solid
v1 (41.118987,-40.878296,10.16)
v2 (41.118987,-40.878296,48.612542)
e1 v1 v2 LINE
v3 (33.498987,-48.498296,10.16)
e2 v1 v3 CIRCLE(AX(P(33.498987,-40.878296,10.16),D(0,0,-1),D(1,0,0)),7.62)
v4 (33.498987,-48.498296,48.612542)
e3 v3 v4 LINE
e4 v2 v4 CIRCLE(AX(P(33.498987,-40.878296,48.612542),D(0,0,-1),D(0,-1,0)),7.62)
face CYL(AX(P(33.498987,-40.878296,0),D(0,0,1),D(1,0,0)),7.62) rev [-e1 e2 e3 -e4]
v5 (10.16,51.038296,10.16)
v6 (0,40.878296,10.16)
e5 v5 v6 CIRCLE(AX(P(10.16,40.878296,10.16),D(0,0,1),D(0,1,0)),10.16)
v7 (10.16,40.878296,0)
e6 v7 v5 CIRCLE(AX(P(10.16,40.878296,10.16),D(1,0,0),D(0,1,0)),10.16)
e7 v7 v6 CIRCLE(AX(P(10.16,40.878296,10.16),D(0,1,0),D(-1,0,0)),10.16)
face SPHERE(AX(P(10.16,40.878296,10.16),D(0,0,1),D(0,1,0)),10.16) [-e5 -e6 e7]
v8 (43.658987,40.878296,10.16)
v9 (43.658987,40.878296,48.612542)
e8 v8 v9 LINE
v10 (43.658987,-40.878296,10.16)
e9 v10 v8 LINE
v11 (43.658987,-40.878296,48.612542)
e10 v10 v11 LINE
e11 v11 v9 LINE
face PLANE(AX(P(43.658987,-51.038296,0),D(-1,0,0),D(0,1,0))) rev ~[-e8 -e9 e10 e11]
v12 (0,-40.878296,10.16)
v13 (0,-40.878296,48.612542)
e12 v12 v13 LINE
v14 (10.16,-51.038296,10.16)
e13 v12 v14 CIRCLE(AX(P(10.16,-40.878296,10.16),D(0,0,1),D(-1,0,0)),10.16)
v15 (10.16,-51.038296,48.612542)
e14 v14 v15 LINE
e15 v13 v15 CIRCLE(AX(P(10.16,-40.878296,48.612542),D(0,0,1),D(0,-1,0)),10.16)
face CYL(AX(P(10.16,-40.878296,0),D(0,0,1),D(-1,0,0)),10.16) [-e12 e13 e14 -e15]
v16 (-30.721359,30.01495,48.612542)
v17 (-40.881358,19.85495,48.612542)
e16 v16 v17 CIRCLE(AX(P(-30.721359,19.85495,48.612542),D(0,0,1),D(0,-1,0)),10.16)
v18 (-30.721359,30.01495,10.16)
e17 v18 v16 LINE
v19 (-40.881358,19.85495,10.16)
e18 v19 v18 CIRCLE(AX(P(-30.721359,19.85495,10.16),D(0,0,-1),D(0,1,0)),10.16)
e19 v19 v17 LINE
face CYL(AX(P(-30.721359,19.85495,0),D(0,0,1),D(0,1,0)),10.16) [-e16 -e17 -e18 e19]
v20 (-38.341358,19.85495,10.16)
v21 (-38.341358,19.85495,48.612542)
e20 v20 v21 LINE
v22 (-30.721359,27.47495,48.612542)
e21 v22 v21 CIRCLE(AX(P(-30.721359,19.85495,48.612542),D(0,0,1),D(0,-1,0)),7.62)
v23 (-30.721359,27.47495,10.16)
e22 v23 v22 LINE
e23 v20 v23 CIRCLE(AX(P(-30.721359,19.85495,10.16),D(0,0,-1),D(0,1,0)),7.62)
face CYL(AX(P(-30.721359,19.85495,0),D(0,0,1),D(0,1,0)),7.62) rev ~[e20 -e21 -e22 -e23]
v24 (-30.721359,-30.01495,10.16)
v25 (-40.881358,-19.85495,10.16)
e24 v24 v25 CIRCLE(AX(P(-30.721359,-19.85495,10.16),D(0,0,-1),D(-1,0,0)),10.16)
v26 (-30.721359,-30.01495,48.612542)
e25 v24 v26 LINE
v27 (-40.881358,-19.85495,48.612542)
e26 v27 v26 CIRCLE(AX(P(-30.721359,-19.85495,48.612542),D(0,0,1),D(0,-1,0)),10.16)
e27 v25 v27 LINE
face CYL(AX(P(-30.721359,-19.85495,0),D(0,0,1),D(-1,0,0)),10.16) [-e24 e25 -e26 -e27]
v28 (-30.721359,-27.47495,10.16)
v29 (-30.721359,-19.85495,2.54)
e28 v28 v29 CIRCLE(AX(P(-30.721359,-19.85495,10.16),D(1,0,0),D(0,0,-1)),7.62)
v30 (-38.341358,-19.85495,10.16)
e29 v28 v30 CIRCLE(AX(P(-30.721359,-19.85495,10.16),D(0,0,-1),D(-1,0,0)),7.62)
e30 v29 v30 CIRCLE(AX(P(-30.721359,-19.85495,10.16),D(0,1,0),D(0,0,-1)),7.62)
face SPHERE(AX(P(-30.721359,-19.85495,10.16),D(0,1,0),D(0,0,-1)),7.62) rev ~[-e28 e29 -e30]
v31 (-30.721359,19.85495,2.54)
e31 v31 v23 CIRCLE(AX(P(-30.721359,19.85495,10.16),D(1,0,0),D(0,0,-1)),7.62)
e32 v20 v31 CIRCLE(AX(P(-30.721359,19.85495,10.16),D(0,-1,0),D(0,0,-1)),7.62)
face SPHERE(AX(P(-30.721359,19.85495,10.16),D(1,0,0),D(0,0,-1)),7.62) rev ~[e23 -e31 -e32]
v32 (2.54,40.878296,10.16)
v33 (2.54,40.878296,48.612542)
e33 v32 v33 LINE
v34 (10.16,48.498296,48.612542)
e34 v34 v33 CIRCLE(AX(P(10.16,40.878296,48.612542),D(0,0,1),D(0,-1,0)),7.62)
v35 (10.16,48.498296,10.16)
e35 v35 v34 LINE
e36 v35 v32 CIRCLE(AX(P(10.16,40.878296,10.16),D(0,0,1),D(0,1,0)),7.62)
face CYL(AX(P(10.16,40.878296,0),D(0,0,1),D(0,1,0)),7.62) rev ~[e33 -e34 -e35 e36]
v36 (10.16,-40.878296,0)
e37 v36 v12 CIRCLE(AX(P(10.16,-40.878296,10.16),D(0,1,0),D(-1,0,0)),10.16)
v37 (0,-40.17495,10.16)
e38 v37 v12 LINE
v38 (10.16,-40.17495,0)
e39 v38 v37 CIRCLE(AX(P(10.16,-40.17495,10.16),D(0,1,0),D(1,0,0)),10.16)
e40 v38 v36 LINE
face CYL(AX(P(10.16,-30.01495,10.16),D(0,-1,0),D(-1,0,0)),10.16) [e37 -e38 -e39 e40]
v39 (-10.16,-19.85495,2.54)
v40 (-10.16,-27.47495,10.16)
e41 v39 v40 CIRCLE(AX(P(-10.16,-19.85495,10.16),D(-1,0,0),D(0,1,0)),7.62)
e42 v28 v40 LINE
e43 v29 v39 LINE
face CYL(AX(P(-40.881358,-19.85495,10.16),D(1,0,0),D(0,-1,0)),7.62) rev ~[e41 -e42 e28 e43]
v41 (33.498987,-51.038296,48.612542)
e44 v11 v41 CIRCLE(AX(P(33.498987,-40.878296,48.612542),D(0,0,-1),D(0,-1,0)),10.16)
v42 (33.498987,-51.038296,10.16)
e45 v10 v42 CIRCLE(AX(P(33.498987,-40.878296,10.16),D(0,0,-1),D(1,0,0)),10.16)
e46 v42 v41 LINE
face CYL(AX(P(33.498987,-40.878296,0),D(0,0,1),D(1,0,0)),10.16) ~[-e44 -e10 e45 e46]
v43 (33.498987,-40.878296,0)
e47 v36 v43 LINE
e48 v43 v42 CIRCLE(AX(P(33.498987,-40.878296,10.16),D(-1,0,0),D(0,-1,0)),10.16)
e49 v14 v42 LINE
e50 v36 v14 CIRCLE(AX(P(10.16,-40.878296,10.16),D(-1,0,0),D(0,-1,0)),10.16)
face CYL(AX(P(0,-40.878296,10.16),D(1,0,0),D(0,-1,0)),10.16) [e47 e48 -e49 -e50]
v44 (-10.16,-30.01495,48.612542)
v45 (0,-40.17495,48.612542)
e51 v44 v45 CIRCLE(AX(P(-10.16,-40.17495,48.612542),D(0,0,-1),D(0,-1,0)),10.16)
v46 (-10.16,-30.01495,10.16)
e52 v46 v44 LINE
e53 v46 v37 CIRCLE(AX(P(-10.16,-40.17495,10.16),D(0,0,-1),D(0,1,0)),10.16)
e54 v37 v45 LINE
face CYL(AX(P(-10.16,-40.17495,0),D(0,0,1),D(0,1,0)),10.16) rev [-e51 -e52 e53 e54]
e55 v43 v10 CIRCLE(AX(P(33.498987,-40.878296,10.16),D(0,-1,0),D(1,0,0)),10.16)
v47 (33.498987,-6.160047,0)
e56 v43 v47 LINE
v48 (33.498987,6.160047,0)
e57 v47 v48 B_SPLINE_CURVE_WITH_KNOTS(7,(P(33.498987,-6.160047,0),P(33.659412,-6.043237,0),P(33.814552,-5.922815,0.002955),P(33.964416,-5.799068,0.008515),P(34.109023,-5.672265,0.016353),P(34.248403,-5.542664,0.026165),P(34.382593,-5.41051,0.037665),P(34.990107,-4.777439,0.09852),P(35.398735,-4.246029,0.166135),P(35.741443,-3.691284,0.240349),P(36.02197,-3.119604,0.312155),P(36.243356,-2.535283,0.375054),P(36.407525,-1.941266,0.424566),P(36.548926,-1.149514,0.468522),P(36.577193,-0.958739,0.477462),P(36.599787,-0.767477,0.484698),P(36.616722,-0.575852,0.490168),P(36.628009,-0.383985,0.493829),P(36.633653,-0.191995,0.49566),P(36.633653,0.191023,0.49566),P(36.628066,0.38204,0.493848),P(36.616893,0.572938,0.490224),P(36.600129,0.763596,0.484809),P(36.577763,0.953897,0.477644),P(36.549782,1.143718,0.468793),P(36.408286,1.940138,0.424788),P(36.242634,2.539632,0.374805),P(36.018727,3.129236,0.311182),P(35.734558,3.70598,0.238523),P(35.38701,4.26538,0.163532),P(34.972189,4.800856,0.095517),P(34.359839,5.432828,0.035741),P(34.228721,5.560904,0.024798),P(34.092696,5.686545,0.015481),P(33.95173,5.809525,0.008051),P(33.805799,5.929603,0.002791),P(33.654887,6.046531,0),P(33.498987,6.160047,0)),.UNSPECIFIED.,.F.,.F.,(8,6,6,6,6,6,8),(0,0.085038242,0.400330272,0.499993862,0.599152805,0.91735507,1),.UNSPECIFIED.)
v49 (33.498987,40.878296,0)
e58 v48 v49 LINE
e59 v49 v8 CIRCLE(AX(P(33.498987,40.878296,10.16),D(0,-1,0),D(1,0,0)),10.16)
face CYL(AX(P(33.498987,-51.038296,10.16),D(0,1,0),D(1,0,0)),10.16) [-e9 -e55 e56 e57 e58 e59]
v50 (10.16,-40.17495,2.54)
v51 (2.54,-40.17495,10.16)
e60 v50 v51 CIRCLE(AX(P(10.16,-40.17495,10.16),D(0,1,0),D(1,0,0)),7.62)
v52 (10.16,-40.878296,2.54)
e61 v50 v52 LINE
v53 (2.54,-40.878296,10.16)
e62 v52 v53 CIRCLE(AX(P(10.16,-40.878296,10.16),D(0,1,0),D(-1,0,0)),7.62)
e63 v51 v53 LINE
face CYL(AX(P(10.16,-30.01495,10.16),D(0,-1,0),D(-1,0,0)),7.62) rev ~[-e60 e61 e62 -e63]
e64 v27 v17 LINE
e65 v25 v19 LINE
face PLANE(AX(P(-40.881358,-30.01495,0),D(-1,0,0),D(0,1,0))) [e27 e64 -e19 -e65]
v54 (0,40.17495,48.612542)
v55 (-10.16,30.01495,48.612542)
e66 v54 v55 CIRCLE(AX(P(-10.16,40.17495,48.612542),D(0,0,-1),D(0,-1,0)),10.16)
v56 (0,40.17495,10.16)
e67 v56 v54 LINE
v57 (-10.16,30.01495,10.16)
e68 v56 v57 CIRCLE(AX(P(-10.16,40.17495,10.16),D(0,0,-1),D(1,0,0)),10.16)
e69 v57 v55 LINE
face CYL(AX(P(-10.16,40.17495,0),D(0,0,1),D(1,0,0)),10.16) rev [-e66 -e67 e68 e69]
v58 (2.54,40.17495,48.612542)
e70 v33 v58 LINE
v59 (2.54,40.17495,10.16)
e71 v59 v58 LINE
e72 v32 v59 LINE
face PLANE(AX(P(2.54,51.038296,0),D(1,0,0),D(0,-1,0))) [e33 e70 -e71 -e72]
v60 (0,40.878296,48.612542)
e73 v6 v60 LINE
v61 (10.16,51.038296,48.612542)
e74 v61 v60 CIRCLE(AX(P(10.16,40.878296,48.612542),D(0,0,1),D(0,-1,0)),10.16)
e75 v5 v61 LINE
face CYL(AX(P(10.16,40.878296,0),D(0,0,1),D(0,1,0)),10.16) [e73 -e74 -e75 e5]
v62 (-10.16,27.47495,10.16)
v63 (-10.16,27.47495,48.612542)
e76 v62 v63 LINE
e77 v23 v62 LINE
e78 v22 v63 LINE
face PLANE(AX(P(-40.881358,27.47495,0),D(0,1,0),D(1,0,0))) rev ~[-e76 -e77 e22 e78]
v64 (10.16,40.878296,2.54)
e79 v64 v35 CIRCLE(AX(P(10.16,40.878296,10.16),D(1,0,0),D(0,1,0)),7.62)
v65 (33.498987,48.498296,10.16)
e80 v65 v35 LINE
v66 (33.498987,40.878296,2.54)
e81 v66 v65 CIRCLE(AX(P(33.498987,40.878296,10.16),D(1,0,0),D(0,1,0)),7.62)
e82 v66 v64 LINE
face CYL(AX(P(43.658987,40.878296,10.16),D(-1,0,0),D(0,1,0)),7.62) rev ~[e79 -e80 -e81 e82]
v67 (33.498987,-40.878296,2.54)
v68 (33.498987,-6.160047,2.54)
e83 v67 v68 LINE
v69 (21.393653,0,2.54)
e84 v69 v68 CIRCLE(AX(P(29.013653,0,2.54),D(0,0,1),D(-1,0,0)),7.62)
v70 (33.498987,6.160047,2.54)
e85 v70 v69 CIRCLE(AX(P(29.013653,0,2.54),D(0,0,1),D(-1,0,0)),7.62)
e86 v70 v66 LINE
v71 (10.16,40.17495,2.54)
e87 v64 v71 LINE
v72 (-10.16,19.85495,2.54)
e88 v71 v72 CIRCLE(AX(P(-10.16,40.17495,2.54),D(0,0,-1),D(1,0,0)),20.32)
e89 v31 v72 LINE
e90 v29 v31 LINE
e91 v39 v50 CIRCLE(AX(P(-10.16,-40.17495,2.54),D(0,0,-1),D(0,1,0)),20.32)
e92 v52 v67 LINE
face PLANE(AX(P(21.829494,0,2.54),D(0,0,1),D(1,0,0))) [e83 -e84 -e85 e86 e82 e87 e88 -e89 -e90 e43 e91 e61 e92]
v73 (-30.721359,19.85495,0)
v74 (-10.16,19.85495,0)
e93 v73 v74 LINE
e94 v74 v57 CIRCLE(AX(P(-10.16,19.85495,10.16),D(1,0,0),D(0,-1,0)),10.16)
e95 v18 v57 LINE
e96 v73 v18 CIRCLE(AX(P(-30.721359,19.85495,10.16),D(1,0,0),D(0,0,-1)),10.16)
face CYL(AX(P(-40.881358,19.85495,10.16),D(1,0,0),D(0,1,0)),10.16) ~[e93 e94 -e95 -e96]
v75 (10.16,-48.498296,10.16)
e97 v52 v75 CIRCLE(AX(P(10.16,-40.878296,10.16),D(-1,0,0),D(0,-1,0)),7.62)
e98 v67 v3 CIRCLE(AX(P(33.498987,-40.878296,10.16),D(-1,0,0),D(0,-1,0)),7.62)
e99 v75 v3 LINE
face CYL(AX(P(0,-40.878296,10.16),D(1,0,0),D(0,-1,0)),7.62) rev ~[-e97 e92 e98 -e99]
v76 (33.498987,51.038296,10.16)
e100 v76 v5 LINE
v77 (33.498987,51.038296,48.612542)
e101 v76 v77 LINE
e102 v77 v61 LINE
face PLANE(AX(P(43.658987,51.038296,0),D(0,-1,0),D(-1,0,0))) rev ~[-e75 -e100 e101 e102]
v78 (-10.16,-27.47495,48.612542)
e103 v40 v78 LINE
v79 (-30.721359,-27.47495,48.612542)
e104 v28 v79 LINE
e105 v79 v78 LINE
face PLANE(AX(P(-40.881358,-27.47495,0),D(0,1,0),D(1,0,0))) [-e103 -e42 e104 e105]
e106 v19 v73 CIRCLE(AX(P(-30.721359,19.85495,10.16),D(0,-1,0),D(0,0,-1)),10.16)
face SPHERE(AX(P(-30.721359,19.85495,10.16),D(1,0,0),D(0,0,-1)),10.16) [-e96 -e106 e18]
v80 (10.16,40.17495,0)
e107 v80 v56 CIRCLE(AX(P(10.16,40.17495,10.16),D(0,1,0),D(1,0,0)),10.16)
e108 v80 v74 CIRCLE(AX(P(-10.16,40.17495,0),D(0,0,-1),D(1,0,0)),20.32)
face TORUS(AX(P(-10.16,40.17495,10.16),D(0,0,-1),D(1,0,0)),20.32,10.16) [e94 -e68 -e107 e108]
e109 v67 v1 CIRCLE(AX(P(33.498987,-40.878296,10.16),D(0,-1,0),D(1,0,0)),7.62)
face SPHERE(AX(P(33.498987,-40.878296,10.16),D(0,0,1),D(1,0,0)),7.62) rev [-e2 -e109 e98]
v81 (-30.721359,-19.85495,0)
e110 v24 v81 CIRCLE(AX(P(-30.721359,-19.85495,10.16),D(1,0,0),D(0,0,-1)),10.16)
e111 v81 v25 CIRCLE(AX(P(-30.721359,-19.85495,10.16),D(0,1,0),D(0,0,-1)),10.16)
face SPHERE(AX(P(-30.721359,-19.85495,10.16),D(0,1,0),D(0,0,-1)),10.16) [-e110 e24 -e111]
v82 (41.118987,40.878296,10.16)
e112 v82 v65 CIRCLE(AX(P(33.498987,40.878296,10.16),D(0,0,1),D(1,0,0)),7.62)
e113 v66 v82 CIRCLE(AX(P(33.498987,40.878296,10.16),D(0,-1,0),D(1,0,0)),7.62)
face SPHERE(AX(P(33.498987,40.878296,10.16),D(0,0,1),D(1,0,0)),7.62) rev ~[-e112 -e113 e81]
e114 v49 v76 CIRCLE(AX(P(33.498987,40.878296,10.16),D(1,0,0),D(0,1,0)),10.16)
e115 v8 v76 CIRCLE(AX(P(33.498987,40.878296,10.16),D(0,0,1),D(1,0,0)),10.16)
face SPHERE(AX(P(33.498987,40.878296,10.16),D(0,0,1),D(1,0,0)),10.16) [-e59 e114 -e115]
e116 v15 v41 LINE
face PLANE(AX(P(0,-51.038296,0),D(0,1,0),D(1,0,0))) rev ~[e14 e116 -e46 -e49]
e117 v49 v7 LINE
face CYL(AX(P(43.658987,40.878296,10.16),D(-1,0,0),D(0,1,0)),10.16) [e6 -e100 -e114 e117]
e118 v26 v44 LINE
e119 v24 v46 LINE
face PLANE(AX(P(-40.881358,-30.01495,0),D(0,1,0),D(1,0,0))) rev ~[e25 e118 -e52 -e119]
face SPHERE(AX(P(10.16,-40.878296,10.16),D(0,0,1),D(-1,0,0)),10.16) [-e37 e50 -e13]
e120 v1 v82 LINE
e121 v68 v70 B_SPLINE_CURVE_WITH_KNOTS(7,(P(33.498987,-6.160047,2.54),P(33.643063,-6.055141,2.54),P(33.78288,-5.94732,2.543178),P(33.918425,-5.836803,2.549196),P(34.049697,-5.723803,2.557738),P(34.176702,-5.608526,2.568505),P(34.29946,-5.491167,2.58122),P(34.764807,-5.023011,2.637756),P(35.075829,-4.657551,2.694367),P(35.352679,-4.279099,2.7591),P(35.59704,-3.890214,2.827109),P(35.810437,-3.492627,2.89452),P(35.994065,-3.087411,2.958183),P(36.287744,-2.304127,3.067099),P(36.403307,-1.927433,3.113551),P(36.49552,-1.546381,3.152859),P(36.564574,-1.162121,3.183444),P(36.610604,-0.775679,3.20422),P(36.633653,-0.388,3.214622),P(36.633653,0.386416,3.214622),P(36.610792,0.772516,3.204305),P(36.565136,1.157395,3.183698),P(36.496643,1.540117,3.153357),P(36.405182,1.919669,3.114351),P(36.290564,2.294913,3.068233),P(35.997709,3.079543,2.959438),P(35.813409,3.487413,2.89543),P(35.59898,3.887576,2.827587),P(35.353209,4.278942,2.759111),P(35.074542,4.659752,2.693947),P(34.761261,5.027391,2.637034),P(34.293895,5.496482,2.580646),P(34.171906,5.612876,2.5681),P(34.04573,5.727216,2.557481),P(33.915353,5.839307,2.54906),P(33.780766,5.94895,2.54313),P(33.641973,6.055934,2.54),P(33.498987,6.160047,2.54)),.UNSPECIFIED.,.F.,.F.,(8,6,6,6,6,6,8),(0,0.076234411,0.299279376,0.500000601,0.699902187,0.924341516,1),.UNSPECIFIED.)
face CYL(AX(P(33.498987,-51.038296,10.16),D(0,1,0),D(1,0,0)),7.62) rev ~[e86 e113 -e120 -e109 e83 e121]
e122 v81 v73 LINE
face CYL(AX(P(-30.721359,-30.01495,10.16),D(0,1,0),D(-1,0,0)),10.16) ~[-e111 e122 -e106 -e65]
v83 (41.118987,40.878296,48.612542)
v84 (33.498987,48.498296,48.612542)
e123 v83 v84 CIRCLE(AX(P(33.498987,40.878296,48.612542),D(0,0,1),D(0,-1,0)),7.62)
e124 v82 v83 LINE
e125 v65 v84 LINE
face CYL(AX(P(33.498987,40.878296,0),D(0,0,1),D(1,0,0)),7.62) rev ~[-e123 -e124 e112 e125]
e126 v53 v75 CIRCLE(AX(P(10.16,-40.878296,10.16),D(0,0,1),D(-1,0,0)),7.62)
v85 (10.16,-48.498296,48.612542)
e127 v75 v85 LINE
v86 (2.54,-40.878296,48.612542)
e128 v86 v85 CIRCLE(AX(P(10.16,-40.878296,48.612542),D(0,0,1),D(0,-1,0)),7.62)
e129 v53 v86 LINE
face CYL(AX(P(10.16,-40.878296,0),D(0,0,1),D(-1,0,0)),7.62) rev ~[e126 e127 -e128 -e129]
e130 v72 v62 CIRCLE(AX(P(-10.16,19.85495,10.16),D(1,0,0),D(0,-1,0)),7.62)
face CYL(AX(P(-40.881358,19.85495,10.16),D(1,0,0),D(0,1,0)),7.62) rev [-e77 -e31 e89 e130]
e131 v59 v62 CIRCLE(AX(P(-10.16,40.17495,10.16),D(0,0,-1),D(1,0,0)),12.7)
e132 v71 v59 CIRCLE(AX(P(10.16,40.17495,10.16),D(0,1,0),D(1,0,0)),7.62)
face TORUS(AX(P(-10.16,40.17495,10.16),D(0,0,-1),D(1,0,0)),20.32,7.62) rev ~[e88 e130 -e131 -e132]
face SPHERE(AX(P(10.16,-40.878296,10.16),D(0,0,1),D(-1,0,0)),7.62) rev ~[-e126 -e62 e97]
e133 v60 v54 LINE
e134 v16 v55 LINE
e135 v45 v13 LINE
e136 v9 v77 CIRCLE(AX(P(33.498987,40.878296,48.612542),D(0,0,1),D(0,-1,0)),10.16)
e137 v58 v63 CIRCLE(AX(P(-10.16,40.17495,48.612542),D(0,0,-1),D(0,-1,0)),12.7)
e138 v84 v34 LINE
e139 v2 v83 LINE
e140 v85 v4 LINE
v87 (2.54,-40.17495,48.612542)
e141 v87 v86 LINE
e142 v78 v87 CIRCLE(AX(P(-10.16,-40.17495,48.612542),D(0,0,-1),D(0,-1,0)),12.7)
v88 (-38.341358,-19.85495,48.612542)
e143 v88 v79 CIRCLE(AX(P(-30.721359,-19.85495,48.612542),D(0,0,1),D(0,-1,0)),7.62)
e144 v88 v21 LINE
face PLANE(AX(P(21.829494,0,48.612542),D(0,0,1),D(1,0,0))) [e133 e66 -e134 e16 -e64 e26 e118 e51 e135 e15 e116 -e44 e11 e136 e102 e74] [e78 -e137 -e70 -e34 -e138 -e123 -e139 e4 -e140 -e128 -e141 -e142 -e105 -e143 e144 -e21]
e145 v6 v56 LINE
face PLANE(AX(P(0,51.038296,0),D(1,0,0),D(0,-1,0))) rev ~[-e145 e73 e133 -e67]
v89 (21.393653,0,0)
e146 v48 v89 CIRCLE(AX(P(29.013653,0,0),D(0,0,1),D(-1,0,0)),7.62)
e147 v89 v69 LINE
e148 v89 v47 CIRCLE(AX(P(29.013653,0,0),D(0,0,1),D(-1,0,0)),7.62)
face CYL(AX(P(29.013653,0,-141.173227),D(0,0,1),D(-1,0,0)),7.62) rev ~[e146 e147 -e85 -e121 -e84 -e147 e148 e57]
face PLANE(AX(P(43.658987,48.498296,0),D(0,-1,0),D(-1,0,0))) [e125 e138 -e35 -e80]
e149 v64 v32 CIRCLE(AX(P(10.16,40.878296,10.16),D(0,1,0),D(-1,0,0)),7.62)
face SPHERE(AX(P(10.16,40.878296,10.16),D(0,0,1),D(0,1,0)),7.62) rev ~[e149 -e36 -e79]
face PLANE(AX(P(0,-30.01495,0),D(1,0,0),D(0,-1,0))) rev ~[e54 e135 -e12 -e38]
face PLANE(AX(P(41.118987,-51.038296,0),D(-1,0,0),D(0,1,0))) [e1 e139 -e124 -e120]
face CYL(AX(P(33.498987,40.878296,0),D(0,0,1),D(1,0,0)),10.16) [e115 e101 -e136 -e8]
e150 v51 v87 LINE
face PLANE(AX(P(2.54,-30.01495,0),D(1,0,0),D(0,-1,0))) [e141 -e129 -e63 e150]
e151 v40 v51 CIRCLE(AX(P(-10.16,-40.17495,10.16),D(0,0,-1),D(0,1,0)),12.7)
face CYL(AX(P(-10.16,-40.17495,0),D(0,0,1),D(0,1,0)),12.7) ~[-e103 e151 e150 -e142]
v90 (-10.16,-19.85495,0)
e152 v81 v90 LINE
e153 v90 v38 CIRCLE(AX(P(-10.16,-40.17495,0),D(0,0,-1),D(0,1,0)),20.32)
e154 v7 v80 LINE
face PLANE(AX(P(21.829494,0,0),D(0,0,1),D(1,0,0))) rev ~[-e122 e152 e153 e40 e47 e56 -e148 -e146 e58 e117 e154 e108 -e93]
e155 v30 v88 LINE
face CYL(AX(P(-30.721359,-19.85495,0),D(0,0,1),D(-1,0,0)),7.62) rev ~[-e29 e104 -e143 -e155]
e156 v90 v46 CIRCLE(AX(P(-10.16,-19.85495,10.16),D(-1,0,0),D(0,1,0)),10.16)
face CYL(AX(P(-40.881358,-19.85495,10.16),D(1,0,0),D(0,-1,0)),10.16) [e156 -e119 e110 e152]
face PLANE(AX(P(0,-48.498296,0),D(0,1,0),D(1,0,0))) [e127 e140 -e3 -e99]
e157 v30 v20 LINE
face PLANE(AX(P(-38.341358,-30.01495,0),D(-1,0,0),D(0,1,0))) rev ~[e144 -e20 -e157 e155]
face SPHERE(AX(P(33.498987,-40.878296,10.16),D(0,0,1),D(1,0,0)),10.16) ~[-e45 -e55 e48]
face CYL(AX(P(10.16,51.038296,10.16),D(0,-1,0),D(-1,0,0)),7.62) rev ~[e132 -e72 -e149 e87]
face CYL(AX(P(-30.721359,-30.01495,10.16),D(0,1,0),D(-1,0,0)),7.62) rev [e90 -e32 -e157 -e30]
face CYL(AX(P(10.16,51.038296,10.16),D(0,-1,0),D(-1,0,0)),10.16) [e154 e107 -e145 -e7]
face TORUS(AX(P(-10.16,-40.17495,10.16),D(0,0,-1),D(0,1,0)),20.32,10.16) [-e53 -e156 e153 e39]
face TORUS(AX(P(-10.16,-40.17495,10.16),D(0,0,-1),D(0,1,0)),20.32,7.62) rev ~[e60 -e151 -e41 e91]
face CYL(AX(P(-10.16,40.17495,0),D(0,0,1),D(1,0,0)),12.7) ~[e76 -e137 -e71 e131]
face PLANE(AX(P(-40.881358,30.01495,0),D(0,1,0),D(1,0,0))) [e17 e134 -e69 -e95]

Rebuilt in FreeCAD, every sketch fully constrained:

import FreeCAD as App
import Part
import Sketcher
from FreeCAD import Vector
Q = App.Units.Quantity


def edges_at(feature, points):
    """Names of the edges that pass closest to the given points."""
    edges = feature.Shape.Edges
    near = lambda p: min(range(len(edges)), key=lambda i: edges[i].distToShape(Part.Vertex(*p))[0])
    return sorted({f"Edge{near(p) + 1}" for p in points})


def faces_at(feature, points):
    """Names of the faces that lie closest to the given points."""
    faces = feature.Shape.Faces
    near = lambda p: min(range(len(faces)), key=lambda i: faces[i].distToShape(Part.Vertex(*p))[0])
    return sorted({f"Face{near(p) + 1}" for p in points})


def add_polygon(sketch, points):
    """Adds a closed chain of lines whose ends are joined by coincident constraints."""
    first, n = sketch.GeometryCount, len(points)
    for a, b in zip(points, points[1:] + points[:1]):
        sketch.addGeometry(Part.LineSegment(App.Vector(*a, 0), App.Vector(*b, 0)), False)
    for i in range(n):
        sketch.addConstraint(Sketcher.Constraint("Coincident", first + i, 2, first + (i + 1) % n, 1))

doc = App.newDocument("Part")
body = doc.addObject("PartDesign::Body", "Body")

# Sketch on XY plane
sketch1 = doc.addObject("Sketcher::SketchObject", "Sketch")
body.addObject(sketch1)
sketch1.AttachmentSupport = (doc.XY_Plane, [""])
sketch1.MapMode = "FlatFace"
add_polygon(sketch1, [(44, -51), (44, 51), (0, 51), (0, 30), (-41, 30), (-41, -30), (0, -30), (0, -51)])  # lines 0-7
sketch1.addConstraint([
    Sketcher.Constraint("Vertical", 0),
    Sketcher.Constraint("Horizontal", 1),
    Sketcher.Constraint("Vertical", 2),
    Sketcher.Constraint("Horizontal", 3),
    Sketcher.Constraint("Vertical", 4),
    Sketcher.Constraint("Horizontal", 5),
    Sketcher.Constraint("Vertical", 6),
    Sketcher.Constraint("Horizontal", 7),
    Sketcher.Constraint("Symmetric", 2, 2, 5, 2, -1, 1),
    Sketcher.Constraint("Symmetric", 1, 2, 6, 2, -1),
    Sketcher.Constraint("DistanceY", 4, 2, 4, 1, Q("60.0299 mm")),
    Sketcher.Constraint("DistanceX", 3, 2, 3, 1, Q("40.881358 mm")),
    Sketcher.Constraint("DistanceX", 1, 2, 1, 1, Q("43.658987 mm")),
    Sketcher.Constraint("DistanceY", 0, 1, 0, 2, Q("102.076592 mm")),
])
pad1 = doc.addObject("PartDesign::Pad", "Pad")
body.addObject(pad1)
pad1.Profile = sketch1
pad1.Length = 48.612542
doc.recompute()

fillet = doc.addObject("PartDesign::Fillet", "Fillet")
body.addObject(fillet)
fillet.Base = (pad1, edges_at(pad1, [
    (0, 51.038, 24.306),
    (43.659, -51.038, 24.306),
    (43.659, 51.038, 24.306),
    (0, -51.038, 24.306),
    (43.659, 0, 0),
    (21.829, 51.038, 0),
    (0, 40.527, 0),
    (-20.441, 30.015, 0),
    (-40.881, 0, 0),
    (-20.441, -30.015, 0),
    (0, -40.527, 0),
    (21.829, -51.038, 0),
    (0, 30.015, 24.306),
    (-40.881, 30.015, 24.306),
    (-40.881, -30.015, 24.306),
    (0, -30.015, 24.306),
]))
fillet.Radius = Q("0.4 in")
doc.recompute()

thickness = doc.addObject("PartDesign::Thickness", "Thickness")
body.addObject(thickness)
thickness.Base = (fillet, faces_at(fillet, [(1.389, 0, 48.613)]))
thickness.Value = Q("0.1 in")
thickness.Reversed = True
thickness.Join = "Arc"

# Sketch on XY plane
sketch2 = doc.addObject("Sketcher::SketchObject", "Sketch001")
body.addObject(sketch2)
sketch2.AttachmentSupport = (doc.XY_Plane, [""])
sketch2.MapMode = "FlatFace"
sketch2.addGeometry(Part.Circle(Vector(29, 0, 0), Vector(0, 0, 1), 8), False)
sketch2.addConstraint([
    Sketcher.Constraint("PointOnObject", 0, 3, -1),
    Sketcher.Constraint("Diameter", 0, Q("0.6 in")),
    Sketcher.Constraint("DistanceX", -1, 1, 0, 3, Q("29.013653 mm")),
])
doc.recompute()
hole = doc.addObject("PartDesign::Hole", "Hole")
body.addObject(hole)
hole.Profile = sketch2
hole.ThreadType = "None"
hole.Diameter = Q("0.6 in")
hole.DepthType = "ThroughAll"
hole.Reversed = True

doc.recompute()
